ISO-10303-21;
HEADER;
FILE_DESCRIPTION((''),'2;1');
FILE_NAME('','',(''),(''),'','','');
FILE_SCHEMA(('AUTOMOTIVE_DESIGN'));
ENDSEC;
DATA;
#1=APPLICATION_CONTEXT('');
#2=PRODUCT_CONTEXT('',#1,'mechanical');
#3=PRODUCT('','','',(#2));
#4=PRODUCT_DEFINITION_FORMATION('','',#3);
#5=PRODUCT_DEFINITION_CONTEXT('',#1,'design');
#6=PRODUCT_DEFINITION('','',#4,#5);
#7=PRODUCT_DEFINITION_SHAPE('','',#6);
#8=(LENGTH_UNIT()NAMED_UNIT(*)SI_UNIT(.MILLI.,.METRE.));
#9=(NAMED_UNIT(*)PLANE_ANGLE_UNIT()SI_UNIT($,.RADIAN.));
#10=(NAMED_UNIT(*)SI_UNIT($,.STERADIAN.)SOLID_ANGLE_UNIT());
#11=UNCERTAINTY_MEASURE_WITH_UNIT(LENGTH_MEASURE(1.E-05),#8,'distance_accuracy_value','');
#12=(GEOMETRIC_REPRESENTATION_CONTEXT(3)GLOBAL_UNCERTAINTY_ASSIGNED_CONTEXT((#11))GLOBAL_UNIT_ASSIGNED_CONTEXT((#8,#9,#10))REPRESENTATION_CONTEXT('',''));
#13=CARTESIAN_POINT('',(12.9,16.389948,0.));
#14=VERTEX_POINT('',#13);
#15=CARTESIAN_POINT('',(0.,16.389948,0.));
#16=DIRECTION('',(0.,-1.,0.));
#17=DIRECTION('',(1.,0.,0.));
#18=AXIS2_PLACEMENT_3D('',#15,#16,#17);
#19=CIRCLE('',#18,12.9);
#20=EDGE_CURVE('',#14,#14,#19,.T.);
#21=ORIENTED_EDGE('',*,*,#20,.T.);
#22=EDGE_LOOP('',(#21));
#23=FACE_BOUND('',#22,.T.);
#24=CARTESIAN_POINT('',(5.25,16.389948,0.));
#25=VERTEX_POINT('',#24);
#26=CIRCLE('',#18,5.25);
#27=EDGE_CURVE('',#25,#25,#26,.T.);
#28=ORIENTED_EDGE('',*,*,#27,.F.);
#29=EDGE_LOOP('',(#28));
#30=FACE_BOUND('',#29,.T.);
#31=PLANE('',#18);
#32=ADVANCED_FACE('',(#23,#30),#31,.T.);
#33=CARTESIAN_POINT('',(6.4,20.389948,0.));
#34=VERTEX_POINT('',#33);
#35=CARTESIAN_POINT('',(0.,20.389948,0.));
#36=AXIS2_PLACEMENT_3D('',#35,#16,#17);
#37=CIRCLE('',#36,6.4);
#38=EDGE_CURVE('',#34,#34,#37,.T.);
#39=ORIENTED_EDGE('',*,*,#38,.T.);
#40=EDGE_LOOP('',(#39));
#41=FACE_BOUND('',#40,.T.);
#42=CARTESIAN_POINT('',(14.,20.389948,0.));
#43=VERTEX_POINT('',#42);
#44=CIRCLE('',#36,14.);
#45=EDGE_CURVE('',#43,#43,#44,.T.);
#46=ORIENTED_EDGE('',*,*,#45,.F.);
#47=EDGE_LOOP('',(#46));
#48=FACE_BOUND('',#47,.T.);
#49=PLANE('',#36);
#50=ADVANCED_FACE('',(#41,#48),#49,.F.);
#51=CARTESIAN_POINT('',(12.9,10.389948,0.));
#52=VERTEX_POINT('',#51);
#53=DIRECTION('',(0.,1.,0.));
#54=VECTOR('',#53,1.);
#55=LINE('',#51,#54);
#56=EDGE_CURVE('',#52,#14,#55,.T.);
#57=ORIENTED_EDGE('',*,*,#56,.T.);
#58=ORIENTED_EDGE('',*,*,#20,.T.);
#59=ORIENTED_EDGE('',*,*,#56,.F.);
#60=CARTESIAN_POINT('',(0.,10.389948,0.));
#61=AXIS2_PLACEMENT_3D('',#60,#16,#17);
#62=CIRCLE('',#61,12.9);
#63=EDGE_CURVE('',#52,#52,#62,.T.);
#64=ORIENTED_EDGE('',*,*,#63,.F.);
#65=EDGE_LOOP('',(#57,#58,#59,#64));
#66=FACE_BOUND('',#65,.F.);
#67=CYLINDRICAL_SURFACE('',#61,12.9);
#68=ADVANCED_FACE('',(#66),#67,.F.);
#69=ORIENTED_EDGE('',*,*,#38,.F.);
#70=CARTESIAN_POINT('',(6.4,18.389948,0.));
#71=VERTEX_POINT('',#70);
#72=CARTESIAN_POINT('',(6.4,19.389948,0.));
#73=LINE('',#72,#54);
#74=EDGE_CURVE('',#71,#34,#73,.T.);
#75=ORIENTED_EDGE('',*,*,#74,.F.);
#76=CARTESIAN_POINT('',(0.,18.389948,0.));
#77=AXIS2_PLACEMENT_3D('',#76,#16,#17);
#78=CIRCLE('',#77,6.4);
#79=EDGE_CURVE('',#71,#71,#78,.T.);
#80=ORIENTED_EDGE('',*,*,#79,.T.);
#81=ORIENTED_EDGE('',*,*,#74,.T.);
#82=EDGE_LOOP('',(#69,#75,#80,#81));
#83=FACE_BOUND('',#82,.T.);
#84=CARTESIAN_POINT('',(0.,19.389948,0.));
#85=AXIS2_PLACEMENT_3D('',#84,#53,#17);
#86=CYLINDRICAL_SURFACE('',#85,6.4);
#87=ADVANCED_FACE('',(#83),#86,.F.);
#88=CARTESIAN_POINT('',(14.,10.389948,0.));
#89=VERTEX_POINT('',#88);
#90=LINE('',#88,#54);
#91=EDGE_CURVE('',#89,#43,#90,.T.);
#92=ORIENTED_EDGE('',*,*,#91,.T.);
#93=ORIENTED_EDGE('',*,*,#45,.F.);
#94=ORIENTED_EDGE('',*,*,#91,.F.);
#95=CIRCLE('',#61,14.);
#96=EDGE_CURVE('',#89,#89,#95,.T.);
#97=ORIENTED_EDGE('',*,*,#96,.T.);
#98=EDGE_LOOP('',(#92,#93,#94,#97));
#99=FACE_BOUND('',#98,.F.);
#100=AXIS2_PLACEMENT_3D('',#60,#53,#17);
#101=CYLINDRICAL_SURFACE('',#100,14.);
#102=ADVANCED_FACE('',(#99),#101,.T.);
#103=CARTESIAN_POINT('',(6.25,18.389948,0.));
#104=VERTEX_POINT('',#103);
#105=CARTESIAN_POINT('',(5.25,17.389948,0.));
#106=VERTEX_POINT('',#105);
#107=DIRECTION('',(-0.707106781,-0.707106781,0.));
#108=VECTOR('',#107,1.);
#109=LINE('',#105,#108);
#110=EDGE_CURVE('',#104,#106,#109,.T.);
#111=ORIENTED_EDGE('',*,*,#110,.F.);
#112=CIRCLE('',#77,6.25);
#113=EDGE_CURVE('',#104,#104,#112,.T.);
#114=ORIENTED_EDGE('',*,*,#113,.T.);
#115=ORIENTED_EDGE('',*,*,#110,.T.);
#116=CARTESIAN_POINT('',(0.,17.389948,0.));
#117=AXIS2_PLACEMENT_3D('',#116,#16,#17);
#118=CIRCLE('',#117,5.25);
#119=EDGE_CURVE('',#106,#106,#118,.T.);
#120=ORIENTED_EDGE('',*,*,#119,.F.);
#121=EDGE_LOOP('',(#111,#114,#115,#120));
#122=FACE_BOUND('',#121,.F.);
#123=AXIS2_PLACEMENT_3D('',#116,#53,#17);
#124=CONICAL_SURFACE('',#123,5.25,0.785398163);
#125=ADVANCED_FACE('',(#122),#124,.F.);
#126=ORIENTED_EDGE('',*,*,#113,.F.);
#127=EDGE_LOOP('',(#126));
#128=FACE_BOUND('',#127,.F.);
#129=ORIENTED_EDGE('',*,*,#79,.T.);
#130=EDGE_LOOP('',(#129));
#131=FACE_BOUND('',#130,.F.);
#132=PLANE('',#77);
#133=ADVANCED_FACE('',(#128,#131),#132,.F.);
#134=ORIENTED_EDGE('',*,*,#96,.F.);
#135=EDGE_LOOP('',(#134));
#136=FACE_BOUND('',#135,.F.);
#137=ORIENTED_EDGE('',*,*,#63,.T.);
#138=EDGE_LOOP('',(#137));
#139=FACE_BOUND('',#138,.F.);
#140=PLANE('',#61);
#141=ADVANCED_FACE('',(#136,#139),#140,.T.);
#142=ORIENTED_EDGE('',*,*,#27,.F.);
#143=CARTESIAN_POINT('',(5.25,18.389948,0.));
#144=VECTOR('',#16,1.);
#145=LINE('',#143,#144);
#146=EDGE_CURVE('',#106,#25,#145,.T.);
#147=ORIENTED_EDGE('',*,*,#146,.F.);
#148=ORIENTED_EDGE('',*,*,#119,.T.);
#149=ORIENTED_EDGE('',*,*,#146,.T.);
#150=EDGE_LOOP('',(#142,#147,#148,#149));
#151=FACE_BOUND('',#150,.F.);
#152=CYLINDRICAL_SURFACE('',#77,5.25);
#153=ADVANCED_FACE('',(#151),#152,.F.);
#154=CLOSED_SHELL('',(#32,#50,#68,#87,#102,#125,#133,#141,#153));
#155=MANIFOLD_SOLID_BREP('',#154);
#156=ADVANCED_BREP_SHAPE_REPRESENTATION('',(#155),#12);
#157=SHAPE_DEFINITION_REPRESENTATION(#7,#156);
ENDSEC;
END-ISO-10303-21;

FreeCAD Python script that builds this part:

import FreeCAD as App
import Part
import Sketcher
from FreeCAD import Vector


def edges_at(feature, points):
    """Names of the edges that pass closest to the given points."""
    edges = feature.Shape.Edges
    near = lambda p: min(range(len(edges)), key=lambda i: edges[i].distToShape(Part.Vertex(*p))[0])
    return sorted({f"Edge{near(p) + 1}" for p in points})

doc = App.newDocument("Part")
body = doc.addObject("PartDesign::Body", "Body")

# Sketch on XY plane
sketch1 = body.newObject("Sketcher::SketchObject", "Sketch")
sketch1.AttachmentSupport = (doc.getObject("XY_Plane"), [""])
sketch1.MapMode = "FlatFace"
sketch1.addGeometry([
    Part.LineSegment(Vector(6.4, 20.4, 0), Vector(6.4, 18.4, 0)),  # 0
    Part.LineSegment(Vector(6.4, 18.4, 0), Vector(5.2, 18.4, 0)),  # 1
    Part.LineSegment(Vector(5.2, 18.4, 0), Vector(5.2, 10.4, 0)),  # 2
    Part.LineSegment(Vector(5.2, 10.4, 0), Vector(14, 10.4, 0)),  # 3
    Part.LineSegment(Vector(14, 10.4, 0), Vector(14, 20.4, 0)),  # 4
    Part.LineSegment(Vector(14, 20.4, 0), Vector(6.4, 20.4, 0)),  # 5
], False)
sketch1.addConstraint([
    Sketcher.Constraint("Coincident", 0, 2, 1, 1),
    Sketcher.Constraint("Coincident", 1, 2, 2, 1),
    Sketcher.Constraint("Coincident", 2, 2, 3, 1),
    Sketcher.Constraint("Coincident", 3, 2, 4, 1),
    Sketcher.Constraint("Coincident", 4, 2, 5, 1),
    Sketcher.Constraint("Coincident", 5, 2, 0, 1),
    Sketcher.Constraint("Vertical", 0),
    Sketcher.Constraint("Horizontal", 1),
    Sketcher.Constraint("Vertical", 2),
    Sketcher.Constraint("Horizontal", 3),
    Sketcher.Constraint("Vertical", 4),
    Sketcher.Constraint("Horizontal", 5),
    Sketcher.Constraint("DistanceY", 0, 2, 0, 1, 2.0),
    Sketcher.Constraint("DistanceY", 2, 2, 2, 1, 8.0),
    Sketcher.Constraint("DistanceX", 5, 2, 5, 1, 7.6),
    Sketcher.Constraint("DistanceX", -1, 1, 3, 2, 14.0),
    Sketcher.Constraint("DistanceX", 1, 2, 1, 1, 1.15),
    Sketcher.Constraint("DistanceY", -1, 1, 0, 2, 18.389948),
])
revolution = body.newObject("PartDesign::Revolution", "Revolution")
revolution.Profile = sketch1
revolution.ReferenceAxis = (sketch1, ["V_Axis"])
revolution.Angle = 360

# Sketch on XZ plane
sketch2 = body.newObject("Sketcher::SketchObject", "Sketch001")
sketch2.AttachmentSupport = (doc.getObject("XZ_Plane"), [""])
sketch2.MapMode = "FlatFace"
sketch2.AttachmentOffset = App.Placement(Vector(0, 0, -10.389948), App.Rotation())
sketch2.addGeometry([
    Part.Circle(Vector(0, 0, 0), Vector(0, 0, 1), 13),
    Part.Circle(Vector(0, 0, 0), Vector(0, 0, 1), 5),
], False)
sketch2.addConstraint([
    Sketcher.Constraint("Coincident", 0, 3, -1, 1),
    Sketcher.Constraint("Coincident", 1, 3, -1, 1),
    Sketcher.Constraint("Diameter", 0, 25.8),
    Sketcher.Constraint("Diameter", 1, 10.5),
])
pocket1 = body.newObject("PartDesign::Pocket", "Pocket")
pocket1.Profile = sketch2
pocket1.Length = 6
doc.recompute()

chamfer = body.newObject("PartDesign::Chamfer", "Chamfer")
chamfer.Base = (pocket1, edges_at(pocket1, [(-5.25, 18.39, 0)]))
chamfer.Size = 1

doc.recompute()
